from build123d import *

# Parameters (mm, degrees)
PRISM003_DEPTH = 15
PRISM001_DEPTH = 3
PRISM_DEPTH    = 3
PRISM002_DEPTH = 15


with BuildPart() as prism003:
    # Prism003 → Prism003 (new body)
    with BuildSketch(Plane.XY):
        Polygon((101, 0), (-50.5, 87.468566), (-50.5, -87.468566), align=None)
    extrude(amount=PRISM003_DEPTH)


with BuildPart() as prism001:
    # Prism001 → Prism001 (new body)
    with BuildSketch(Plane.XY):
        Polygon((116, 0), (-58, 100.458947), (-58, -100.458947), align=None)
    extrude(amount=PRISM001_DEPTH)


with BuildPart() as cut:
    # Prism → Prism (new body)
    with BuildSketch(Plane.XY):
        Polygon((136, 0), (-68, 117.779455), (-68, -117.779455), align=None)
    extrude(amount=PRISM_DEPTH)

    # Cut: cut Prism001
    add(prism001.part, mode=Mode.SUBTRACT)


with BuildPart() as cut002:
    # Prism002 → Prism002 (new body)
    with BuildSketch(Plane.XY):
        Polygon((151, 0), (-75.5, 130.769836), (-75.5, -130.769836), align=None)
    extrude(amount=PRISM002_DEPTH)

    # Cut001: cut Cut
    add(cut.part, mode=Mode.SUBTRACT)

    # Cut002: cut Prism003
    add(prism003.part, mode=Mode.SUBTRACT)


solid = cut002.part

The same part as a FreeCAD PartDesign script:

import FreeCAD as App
import Part
import Sketcher

V = App.Vector
Q = App.Units.Quantity


def add_polygon(sketch, points):
    """Adds a closed chain of lines whose ends are joined by coincident constraints."""
    first, n = sketch.GeometryCount, len(points)
    for a, b in zip(points, points[1:] + points[:1]):
        sketch.addGeometry(Part.LineSegment(App.Vector(*a, 0), App.Vector(*b, 0)), False)
    for i in range(n):
        sketch.addConstraint(Sketcher.Constraint("Coincident", first + i, 2, first + (i + 1) % n, 1))

doc = App.newDocument("Part")
body = doc.addObject("PartDesign::Body", "Body")

sketch1 = body.newObject("Sketcher::SketchObject", "Sketch")
sketch1.AttachmentSupport = (doc.getObject("XY_Plane"), [""])
sketch1.MapMode = "FlatFace"
add_polygon(sketch1, [(101, 0), (-50, 87), (-50, -87)])
sketch1.addConstraint(Sketcher.Constraint("Vertical", 1))
sketch1.addConstraint(Sketcher.Constraint("PointOnObject", 2, 2, -1))
sketch1.addConstraint(Sketcher.Constraint("Equal", 0, 2))
sketch1.addConstraint(Sketcher.Constraint("Angle", 0, Q("150 deg")))
sketch1.addConstraint(Sketcher.Constraint("DistanceX", -1, 1, 2, 2, Q("101 mm")))
sketch1.addConstraint(Sketcher.Constraint("DistanceX", 0, 2, -1, 1, Q("50.5 mm")))
pad1 = body.newObject("PartDesign::Pad", "Pad")
pad1.Profile = sketch1
pad1.Length = 15
body2 = doc.addObject("PartDesign::Body", "Body001")

sketch2 = body2.newObject("Sketcher::SketchObject", "Sketch001")
sketch2.AttachmentSupport = (doc.getObject("XY_Plane001"), [""])
sketch2.MapMode = "FlatFace"
add_polygon(sketch2, [(116, 0), (-58, 100), (-58, -100)])
sketch2.addConstraint(Sketcher.Constraint("Vertical", 1))
sketch2.addConstraint(Sketcher.Constraint("PointOnObject", 2, 2, -1))
sketch2.addConstraint(Sketcher.Constraint("Equal", 0, 2))
sketch2.addConstraint(Sketcher.Constraint("Angle", 0, Q("150 deg")))
sketch2.addConstraint(Sketcher.Constraint("DistanceX", 0, 2, -1, 1, Q("58 mm")))
sketch2.addConstraint(Sketcher.Constraint("DistanceX", -1, 1, 2, 2, Q("116 mm")))
pad2 = body2.newObject("PartDesign::Pad", "Pad001")
pad2.Profile = sketch2
pad2.Length = 3
body3 = doc.addObject("PartDesign::Body", "Body002")

sketch3 = body3.newObject("Sketcher::SketchObject", "Sketch002")
sketch3.AttachmentSupport = (doc.getObject("XY_Plane002"), [""])
sketch3.MapMode = "FlatFace"
add_polygon(sketch3, [(136, 0), (-68, 118), (-68, -118)])
sketch3.addConstraint(Sketcher.Constraint("Vertical", 1))
sketch3.addConstraint(Sketcher.Constraint("PointOnObject", 2, 2, -1))
sketch3.addConstraint(Sketcher.Constraint("Equal", 0, 2))
sketch3.addConstraint(Sketcher.Constraint("Angle", 0, Q("150 deg")))
sketch3.addConstraint(Sketcher.Constraint("DistanceX", 0, 2, -1, 1, Q("68 mm")))
sketch3.addConstraint(Sketcher.Constraint("DistanceX", -1, 1, 2, 2, Q("136 mm")))
pad3 = body3.newObject("PartDesign::Pad", "Pad002")
pad3.Profile = sketch3
pad3.Length = 3
doc.recompute()

boolean = body3.newObject("PartDesign::Boolean", "Boolean")
boolean.Type = "Cut"
boolean.addObjects([body2])
body4 = doc.addObject("PartDesign::Body", "Body003")

sketch4 = body4.newObject("Sketcher::SketchObject", "Sketch003")
sketch4.AttachmentSupport = (doc.getObject("XY_Plane003"), [""])
sketch4.MapMode = "FlatFace"
add_polygon(sketch4, [(151, 0), (-76, 131), (-76, -131)])
sketch4.addConstraint(Sketcher.Constraint("Vertical", 1))
sketch4.addConstraint(Sketcher.Constraint("PointOnObject", 2, 2, -1))
sketch4.addConstraint(Sketcher.Constraint("Equal", 0, 2))
sketch4.addConstraint(Sketcher.Constraint("Angle", 0, Q("150 deg")))
sketch4.addConstraint(Sketcher.Constraint("DistanceX", -1, 1, 2, 2, Q("151 mm")))
sketch4.addConstraint(Sketcher.Constraint("DistanceX", 0, 2, -1, 1, Q("75.5 mm")))
pad4 = body4.newObject("PartDesign::Pad", "Pad003")
pad4.Profile = sketch4
pad4.Length = 15
doc.recompute()

boolean2 = body4.newObject("PartDesign::Boolean", "Boolean001")
boolean2.Type = "Cut"
boolean2.addObjects([body3])
doc.recompute()

boolean3 = body4.newObject("PartDesign::Boolean", "Boolean002")
boolean3.Type = "Cut"
boolean3.addObjects([body])

doc.recompute()
